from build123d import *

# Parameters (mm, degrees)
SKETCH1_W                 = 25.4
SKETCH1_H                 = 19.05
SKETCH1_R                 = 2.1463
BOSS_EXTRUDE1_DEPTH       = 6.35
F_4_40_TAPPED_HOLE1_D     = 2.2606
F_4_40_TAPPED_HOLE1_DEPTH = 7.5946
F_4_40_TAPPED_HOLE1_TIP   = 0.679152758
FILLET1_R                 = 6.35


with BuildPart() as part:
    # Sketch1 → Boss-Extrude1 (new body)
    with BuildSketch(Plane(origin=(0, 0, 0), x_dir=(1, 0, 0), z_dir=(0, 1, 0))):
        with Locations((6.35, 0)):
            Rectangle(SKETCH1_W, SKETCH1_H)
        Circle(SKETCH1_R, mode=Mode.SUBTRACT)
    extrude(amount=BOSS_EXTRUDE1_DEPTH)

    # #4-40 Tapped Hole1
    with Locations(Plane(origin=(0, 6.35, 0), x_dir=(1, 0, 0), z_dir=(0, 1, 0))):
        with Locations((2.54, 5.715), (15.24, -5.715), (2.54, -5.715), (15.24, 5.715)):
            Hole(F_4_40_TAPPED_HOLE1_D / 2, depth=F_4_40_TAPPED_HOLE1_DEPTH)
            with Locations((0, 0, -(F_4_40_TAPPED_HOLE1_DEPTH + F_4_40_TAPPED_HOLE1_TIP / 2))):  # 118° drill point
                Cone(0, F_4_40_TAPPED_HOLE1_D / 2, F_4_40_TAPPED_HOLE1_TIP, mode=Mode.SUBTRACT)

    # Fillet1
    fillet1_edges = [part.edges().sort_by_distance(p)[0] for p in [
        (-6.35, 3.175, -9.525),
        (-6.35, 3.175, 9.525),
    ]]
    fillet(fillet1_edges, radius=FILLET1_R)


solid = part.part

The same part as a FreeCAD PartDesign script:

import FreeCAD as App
import Part
import Sketcher
Q = App.Units.Quantity


def edges_at(feature, points):
    """Names of the edges that pass closest to the given points."""
    edges = feature.Shape.Edges
    near = lambda p: min(range(len(edges)), key=lambda i: edges[i].distToShape(Part.Vertex(*p))[0])
    return sorted({f"Edge{near(p) + 1}" for p in points})


def add_polygon(sketch, points):
    """Adds a closed chain of lines whose ends are joined by coincident constraints."""
    first, n = sketch.GeometryCount, len(points)
    for a, b in zip(points, points[1:] + points[:1]):
        sketch.addGeometry(Part.LineSegment(App.Vector(*a, 0), App.Vector(*b, 0)), False)
    for i in range(n):
        sketch.addConstraint(Sketcher.Constraint("Coincident", first + i, 2, first + (i + 1) % n, 1))

doc = App.newDocument("Part")
body = doc.addObject("PartDesign::Body", "Body")

# Sketch on XZ plane
sketch1 = body.newObject("Sketcher::SketchObject", "Sketch")
sketch1.AttachmentSupport = (doc.getObject("XZ_Plane"), [""])
sketch1.MapMode = "FlatFace"
add_polygon(sketch1, [(-6.3, -9.5), (-6.3, 9.5), (19.1, 9.5), (19.1, -9.5)])  # lines 0-3
sketch1.addGeometry(Part.Circle(App.Vector(0, 0, 0), App.Vector(0, 0, 1), 2.1), False)  # 4
sketch1.addConstraint([
    Sketcher.Constraint("Vertical", 0),
    Sketcher.Constraint("Horizontal", 1),
    Sketcher.Constraint("Vertical", 2),
    Sketcher.Constraint("Horizontal", 3),
    Sketcher.Constraint("Coincident", 4, 3, -1, 1),
    Sketcher.Constraint("DistanceX", 1, 1, 1, 2, Q("1 in")),
    Sketcher.Constraint("Diameter", 4, Q("0.169 in")),
    Sketcher.Constraint("DistanceY", 0, 1, 0, 2, Q("0.75 in")),
    Sketcher.Constraint("DistanceX", 0, 2, -1, 1, Q("0.25 in")),
    Sketcher.Constraint("DistanceY", -1, 1, 0, 2, Q("0.375 in")),
])
pad1 = body.newObject("PartDesign::Pad", "Pad")
pad1.Profile = sketch1
pad1.Length = Q("0.25 in")
pad1.Reversed = True

# Sketch on XZ plane
sketch2 = body.newObject("Sketcher::SketchObject", "Sketch001")
sketch2.AttachmentSupport = (doc.getObject("XZ_Plane"), [""])
sketch2.MapMode = "FlatFace"
sketch2.AttachmentOffset = App.Placement(App.Vector(0, 0, -0.25 * 25.4), App.Rotation())
sketch2.addGeometry([
    Part.Circle(App.Vector(2.5, -5.7, 0), App.Vector(0, 0, 1), 1.1),
    Part.Circle(App.Vector(15.2, 5.7, 0), App.Vector(0, 0, 1), 1.1),
    Part.Circle(App.Vector(2.5, 5.7, 0), App.Vector(0, 0, 1), 1.1),
    Part.Circle(App.Vector(15.2, -5.7, 0), App.Vector(0, 0, 1), 1.1),
], False)
sketch2.addConstraint([
    Sketcher.Constraint("Equal", 0, 1),
    Sketcher.Constraint("Equal", 1, 2),
    Sketcher.Constraint("Equal", 2, 3),
    Sketcher.Constraint("Symmetric", 0, 3, 2, 3, -1),
    Sketcher.Constraint("Symmetric", 1, 3, 3, 3, -1),
    Sketcher.Constraint("Horizontal", 1, 3, 2, 3),
    Sketcher.Constraint("Diameter", 0, Q("0.089 in")),
    Sketcher.Constraint("DistanceX", -1, 1, 0, 3, Q("0.1 in")),
    Sketcher.Constraint("DistanceX", -1, 1, 1, 3, Q("0.6 in")),
    Sketcher.Constraint("DistanceY", 0, 3, 1, 3, Q("0.45 in")),
])
doc.recompute()
hole = body.newObject("PartDesign::Hole", "Hole")
hole.Profile = sketch2
hole.ThreadType = "None"
hole.Diameter = Q("0.089 in")
hole.DepthType = "Dimension"
hole.Depth = Q("0.299 in")
hole.DrillPoint = "Angled"
hole.DrillPointAngle = 118
hole.Reversed = True
doc.recompute()

fillet = body.newObject("PartDesign::Fillet", "Fillet")
fillet.Base = (hole, edges_at(hole, [(-6.35, 3.175, -9.525), (-6.35, 3.175, 9.525)]))
fillet.Radius = Q("0.25 in")

doc.recompute()
